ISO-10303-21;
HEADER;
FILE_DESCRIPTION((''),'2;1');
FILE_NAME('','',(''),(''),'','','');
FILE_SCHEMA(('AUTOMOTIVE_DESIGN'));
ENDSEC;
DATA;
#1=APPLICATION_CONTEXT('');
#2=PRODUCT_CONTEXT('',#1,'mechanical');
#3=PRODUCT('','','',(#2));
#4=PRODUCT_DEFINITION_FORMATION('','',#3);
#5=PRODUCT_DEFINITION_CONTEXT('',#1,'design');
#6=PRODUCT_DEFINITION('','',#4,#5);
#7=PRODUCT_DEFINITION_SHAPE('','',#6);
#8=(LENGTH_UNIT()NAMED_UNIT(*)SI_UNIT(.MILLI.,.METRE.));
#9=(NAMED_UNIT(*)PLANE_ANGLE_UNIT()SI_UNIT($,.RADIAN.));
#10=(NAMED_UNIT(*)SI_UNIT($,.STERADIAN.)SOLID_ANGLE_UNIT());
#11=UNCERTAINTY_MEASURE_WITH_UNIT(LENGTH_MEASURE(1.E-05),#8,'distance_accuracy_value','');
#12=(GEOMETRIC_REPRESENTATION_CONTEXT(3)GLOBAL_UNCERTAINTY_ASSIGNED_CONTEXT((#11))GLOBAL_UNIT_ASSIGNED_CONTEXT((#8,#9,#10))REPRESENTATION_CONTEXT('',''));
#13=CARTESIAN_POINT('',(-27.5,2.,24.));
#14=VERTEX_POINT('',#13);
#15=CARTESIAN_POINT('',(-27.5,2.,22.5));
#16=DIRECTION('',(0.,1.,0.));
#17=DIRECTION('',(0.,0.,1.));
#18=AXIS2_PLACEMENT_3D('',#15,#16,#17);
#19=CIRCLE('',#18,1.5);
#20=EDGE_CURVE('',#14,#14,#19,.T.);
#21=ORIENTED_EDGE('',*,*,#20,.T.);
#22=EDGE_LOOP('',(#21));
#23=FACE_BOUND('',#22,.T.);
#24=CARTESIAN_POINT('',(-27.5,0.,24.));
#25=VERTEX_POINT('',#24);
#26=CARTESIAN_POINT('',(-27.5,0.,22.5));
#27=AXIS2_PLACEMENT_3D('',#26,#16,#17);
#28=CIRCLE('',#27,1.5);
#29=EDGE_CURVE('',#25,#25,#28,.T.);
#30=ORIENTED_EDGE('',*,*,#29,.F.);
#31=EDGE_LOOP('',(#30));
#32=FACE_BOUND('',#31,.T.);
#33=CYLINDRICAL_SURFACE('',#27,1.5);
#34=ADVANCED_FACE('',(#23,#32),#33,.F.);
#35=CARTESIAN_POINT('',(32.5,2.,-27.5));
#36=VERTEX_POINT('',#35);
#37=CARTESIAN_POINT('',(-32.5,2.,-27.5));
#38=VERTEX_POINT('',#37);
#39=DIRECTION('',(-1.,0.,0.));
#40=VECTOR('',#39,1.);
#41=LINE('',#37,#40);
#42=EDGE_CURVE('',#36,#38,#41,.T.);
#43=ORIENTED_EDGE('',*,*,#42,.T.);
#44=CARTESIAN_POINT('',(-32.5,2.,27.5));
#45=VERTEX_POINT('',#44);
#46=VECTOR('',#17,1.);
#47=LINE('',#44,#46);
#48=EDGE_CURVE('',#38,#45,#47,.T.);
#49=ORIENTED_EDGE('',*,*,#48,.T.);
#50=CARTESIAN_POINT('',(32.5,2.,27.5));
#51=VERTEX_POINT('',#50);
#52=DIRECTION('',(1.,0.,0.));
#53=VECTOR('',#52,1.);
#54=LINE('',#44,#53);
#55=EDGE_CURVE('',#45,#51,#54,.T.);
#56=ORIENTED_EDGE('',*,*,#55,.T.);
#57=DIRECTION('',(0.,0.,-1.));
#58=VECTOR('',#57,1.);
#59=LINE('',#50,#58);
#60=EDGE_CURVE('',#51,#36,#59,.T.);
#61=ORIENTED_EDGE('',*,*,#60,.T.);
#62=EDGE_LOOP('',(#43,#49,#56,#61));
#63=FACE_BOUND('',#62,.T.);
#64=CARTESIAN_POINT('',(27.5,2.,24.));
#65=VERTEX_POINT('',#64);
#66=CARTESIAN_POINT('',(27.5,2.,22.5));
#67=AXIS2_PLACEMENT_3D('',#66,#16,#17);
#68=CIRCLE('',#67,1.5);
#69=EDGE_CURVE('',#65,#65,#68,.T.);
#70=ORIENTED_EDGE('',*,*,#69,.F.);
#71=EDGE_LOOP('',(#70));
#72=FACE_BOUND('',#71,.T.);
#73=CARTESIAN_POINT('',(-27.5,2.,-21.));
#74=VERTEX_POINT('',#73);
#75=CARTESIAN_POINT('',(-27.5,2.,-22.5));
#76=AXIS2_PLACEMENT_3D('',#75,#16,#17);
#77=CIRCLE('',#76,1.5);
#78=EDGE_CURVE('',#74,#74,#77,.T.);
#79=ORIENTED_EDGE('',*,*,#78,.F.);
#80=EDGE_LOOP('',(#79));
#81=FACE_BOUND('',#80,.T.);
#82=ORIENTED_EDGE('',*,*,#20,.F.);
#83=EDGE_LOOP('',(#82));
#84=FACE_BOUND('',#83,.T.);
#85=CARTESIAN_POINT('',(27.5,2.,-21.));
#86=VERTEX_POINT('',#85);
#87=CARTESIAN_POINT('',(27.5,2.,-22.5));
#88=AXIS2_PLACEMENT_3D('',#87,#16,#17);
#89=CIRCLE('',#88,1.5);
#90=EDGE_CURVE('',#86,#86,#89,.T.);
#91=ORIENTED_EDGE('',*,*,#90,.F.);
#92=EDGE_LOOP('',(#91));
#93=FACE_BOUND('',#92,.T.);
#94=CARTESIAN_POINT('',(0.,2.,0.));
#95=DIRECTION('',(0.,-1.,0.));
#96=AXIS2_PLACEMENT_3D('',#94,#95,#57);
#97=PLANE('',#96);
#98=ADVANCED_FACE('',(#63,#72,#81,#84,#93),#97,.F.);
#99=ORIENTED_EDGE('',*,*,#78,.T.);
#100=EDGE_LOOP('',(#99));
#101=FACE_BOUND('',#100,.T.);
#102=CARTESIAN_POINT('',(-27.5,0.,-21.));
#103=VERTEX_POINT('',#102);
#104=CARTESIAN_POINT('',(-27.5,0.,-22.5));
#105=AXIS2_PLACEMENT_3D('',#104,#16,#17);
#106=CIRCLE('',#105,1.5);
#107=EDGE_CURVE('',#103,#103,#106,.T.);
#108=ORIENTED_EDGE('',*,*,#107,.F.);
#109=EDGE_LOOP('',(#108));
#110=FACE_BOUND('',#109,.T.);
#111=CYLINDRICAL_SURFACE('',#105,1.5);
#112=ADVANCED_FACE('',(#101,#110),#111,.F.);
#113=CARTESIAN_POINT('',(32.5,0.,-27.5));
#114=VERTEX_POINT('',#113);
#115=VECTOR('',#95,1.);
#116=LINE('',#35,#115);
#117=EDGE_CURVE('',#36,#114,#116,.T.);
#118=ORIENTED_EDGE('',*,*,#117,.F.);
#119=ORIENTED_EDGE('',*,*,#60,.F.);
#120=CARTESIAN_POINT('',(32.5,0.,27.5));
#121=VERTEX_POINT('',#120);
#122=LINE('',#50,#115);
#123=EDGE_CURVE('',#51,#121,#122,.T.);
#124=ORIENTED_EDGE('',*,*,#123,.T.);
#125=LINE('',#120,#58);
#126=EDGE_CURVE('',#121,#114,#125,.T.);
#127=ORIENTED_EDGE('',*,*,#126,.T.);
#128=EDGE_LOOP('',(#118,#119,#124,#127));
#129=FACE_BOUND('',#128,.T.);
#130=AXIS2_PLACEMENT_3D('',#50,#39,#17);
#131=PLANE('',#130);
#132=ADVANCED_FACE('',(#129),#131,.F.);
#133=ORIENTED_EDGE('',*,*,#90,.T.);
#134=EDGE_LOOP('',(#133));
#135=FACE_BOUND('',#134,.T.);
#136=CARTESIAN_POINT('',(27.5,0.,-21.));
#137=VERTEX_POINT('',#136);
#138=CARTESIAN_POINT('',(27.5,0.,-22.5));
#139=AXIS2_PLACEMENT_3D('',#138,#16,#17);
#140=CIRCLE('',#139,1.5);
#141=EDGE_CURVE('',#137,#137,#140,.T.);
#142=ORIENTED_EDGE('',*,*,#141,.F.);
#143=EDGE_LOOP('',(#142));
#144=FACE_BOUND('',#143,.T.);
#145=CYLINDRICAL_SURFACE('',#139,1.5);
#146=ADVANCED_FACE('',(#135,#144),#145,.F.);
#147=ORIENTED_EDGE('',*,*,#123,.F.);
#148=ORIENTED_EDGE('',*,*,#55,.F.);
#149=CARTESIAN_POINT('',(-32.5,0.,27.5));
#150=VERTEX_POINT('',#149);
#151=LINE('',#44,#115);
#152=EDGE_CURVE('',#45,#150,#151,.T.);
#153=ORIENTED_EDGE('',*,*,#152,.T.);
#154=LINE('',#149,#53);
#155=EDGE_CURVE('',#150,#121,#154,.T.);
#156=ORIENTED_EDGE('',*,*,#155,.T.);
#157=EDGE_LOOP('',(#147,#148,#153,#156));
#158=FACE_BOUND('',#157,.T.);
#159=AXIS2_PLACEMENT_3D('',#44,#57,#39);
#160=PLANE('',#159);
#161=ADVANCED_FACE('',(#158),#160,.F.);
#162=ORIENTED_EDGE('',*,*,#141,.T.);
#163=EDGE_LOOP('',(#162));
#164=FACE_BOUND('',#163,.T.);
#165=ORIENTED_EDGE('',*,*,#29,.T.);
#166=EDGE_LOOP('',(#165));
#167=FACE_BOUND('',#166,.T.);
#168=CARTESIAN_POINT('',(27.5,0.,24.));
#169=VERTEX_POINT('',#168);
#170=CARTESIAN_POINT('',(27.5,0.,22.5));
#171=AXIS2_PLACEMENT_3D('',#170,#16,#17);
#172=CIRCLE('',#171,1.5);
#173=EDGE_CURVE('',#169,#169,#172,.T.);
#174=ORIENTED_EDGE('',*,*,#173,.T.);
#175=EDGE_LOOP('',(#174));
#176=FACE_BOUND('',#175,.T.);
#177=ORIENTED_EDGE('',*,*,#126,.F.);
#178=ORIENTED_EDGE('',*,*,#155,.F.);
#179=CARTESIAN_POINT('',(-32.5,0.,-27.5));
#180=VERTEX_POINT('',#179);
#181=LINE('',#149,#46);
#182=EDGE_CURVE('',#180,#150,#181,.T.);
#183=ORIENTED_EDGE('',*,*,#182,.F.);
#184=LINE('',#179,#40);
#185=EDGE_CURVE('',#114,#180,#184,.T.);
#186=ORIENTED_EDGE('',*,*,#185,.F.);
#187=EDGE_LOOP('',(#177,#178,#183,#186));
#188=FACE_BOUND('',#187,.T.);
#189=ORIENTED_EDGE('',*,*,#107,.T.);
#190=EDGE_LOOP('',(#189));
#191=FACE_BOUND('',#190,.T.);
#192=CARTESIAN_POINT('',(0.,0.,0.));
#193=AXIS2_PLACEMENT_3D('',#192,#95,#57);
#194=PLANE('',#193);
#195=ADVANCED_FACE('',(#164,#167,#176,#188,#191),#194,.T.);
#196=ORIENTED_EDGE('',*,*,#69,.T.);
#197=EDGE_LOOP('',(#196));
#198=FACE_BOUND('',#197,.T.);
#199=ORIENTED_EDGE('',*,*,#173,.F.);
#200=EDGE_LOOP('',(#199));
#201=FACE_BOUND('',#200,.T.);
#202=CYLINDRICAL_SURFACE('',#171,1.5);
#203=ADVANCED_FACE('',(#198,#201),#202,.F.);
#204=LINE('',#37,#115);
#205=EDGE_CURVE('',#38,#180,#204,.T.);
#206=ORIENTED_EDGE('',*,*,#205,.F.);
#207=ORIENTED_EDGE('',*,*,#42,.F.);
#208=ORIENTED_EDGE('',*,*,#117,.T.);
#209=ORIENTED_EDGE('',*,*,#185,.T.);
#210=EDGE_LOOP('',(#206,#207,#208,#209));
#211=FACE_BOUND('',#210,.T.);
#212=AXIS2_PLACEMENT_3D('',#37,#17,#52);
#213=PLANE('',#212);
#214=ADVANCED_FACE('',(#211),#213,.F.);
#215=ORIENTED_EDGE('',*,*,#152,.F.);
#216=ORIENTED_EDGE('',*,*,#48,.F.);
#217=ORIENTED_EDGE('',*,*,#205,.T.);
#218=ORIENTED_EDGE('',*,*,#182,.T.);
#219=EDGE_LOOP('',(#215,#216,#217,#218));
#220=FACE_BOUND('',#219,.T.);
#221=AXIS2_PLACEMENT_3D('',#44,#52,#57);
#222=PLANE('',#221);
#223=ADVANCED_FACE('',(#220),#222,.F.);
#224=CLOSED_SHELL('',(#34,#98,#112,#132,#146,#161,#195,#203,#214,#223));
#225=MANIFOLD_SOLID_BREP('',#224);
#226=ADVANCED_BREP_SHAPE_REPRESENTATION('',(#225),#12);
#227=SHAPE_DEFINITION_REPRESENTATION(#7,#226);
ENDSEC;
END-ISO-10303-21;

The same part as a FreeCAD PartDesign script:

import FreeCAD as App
import Part
import Sketcher
Q = App.Units.Quantity

doc = App.newDocument("Part")
body = doc.addObject("PartDesign::Body", "Body")

sketch1 = body.newObject("Sketcher::SketchObject", "Sketch")
sketch1.AttachmentSupport = (doc.getObject("XZ_Plane"), [""])
sketch1.MapMode = "FlatFace"
sketch1.addGeometry([
    Part.LineSegment(App.Vector(-32, -28, 0), App.Vector(-32, 28, 0)),
    Part.LineSegment(App.Vector(-32, 28, 0), App.Vector(32, 28, 0)),
    Part.LineSegment(App.Vector(32, 28, 0), App.Vector(32, -28, 0)),
    Part.LineSegment(App.Vector(32, -28, 0), App.Vector(-32, -28, 0)),
], False)
sketch1.addConstraint([
    Sketcher.Constraint("Coincident", 0, 2, 1, 1),
    Sketcher.Constraint("Coincident", 1, 2, 2, 1),
    Sketcher.Constraint("Coincident", 2, 2, 3, 1),
    Sketcher.Constraint("Coincident", 3, 2, 0, 1),
    Sketcher.Constraint("Vertical", 0),
    Sketcher.Constraint("Horizontal", 1),
    Sketcher.Constraint("Vertical", 2),
    Sketcher.Constraint("Horizontal", 3),
    Sketcher.Constraint("Symmetric", 0, 2, 2, 2, -1, 1),
    Sketcher.Constraint("DistanceX", 1, 1, 1, 2, Q("65 mm")),
    Sketcher.Constraint("DistanceY", 0, 1, 0, 2, Q("55 mm")),
])
pad1 = body.newObject("PartDesign::Pad", "Pad")
pad1.Profile = sketch1
pad1.Length = 2
pad1.Reversed = True

sketch2 = body.newObject("Sketcher::SketchObject", "Sketch001")
sketch2.AttachmentSupport = (doc.getObject("XZ_Plane"), [""])
sketch2.MapMode = "FlatFace"
sketch2.AttachmentOffset = App.Placement(App.Vector(0, 0, -2), App.Rotation())
sketch2.addGeometry([
    Part.Circle(App.Vector(-27.5, -22.5, 0), App.Vector(0, 0, 1), 1.5),
    Part.Circle(App.Vector(27.5, -22.5, 0), App.Vector(0, 0, 1), 1.5),
    Part.Circle(App.Vector(27.5, 22.5, 0), App.Vector(0, 0, 1), 1.5),
    Part.Circle(App.Vector(-27.5, 22.5, 0), App.Vector(0, 0, 1), 1.5),
], False)
sketch2.addConstraint([
    Sketcher.Constraint("Equal", 0, 1),
    Sketcher.Constraint("Equal", 1, 2),
    Sketcher.Constraint("Equal", 2, 3),
    Sketcher.Constraint("Symmetric", 0, 3, 2, 3, -1, 1),
    Sketcher.Constraint("Symmetric", 1, 3, 3, 3, -1, 1),
    Sketcher.Constraint("Symmetric", 0, 3, 1, 3, -2),
    Sketcher.Constraint("Diameter", 0, Q("3 mm")),
    Sketcher.Constraint("DistanceX", 0, 3, 1, 3, Q("55 mm")),
    Sketcher.Constraint("DistanceY", 1, 3, 2, 3, Q("45 mm")),
])
pocket1 = body.newObject("PartDesign::Pocket", "Pocket")
pocket1.Profile = sketch2
pocket1.Type = "ThroughAll"
pocket1.Reversed = True

doc.recompute()
